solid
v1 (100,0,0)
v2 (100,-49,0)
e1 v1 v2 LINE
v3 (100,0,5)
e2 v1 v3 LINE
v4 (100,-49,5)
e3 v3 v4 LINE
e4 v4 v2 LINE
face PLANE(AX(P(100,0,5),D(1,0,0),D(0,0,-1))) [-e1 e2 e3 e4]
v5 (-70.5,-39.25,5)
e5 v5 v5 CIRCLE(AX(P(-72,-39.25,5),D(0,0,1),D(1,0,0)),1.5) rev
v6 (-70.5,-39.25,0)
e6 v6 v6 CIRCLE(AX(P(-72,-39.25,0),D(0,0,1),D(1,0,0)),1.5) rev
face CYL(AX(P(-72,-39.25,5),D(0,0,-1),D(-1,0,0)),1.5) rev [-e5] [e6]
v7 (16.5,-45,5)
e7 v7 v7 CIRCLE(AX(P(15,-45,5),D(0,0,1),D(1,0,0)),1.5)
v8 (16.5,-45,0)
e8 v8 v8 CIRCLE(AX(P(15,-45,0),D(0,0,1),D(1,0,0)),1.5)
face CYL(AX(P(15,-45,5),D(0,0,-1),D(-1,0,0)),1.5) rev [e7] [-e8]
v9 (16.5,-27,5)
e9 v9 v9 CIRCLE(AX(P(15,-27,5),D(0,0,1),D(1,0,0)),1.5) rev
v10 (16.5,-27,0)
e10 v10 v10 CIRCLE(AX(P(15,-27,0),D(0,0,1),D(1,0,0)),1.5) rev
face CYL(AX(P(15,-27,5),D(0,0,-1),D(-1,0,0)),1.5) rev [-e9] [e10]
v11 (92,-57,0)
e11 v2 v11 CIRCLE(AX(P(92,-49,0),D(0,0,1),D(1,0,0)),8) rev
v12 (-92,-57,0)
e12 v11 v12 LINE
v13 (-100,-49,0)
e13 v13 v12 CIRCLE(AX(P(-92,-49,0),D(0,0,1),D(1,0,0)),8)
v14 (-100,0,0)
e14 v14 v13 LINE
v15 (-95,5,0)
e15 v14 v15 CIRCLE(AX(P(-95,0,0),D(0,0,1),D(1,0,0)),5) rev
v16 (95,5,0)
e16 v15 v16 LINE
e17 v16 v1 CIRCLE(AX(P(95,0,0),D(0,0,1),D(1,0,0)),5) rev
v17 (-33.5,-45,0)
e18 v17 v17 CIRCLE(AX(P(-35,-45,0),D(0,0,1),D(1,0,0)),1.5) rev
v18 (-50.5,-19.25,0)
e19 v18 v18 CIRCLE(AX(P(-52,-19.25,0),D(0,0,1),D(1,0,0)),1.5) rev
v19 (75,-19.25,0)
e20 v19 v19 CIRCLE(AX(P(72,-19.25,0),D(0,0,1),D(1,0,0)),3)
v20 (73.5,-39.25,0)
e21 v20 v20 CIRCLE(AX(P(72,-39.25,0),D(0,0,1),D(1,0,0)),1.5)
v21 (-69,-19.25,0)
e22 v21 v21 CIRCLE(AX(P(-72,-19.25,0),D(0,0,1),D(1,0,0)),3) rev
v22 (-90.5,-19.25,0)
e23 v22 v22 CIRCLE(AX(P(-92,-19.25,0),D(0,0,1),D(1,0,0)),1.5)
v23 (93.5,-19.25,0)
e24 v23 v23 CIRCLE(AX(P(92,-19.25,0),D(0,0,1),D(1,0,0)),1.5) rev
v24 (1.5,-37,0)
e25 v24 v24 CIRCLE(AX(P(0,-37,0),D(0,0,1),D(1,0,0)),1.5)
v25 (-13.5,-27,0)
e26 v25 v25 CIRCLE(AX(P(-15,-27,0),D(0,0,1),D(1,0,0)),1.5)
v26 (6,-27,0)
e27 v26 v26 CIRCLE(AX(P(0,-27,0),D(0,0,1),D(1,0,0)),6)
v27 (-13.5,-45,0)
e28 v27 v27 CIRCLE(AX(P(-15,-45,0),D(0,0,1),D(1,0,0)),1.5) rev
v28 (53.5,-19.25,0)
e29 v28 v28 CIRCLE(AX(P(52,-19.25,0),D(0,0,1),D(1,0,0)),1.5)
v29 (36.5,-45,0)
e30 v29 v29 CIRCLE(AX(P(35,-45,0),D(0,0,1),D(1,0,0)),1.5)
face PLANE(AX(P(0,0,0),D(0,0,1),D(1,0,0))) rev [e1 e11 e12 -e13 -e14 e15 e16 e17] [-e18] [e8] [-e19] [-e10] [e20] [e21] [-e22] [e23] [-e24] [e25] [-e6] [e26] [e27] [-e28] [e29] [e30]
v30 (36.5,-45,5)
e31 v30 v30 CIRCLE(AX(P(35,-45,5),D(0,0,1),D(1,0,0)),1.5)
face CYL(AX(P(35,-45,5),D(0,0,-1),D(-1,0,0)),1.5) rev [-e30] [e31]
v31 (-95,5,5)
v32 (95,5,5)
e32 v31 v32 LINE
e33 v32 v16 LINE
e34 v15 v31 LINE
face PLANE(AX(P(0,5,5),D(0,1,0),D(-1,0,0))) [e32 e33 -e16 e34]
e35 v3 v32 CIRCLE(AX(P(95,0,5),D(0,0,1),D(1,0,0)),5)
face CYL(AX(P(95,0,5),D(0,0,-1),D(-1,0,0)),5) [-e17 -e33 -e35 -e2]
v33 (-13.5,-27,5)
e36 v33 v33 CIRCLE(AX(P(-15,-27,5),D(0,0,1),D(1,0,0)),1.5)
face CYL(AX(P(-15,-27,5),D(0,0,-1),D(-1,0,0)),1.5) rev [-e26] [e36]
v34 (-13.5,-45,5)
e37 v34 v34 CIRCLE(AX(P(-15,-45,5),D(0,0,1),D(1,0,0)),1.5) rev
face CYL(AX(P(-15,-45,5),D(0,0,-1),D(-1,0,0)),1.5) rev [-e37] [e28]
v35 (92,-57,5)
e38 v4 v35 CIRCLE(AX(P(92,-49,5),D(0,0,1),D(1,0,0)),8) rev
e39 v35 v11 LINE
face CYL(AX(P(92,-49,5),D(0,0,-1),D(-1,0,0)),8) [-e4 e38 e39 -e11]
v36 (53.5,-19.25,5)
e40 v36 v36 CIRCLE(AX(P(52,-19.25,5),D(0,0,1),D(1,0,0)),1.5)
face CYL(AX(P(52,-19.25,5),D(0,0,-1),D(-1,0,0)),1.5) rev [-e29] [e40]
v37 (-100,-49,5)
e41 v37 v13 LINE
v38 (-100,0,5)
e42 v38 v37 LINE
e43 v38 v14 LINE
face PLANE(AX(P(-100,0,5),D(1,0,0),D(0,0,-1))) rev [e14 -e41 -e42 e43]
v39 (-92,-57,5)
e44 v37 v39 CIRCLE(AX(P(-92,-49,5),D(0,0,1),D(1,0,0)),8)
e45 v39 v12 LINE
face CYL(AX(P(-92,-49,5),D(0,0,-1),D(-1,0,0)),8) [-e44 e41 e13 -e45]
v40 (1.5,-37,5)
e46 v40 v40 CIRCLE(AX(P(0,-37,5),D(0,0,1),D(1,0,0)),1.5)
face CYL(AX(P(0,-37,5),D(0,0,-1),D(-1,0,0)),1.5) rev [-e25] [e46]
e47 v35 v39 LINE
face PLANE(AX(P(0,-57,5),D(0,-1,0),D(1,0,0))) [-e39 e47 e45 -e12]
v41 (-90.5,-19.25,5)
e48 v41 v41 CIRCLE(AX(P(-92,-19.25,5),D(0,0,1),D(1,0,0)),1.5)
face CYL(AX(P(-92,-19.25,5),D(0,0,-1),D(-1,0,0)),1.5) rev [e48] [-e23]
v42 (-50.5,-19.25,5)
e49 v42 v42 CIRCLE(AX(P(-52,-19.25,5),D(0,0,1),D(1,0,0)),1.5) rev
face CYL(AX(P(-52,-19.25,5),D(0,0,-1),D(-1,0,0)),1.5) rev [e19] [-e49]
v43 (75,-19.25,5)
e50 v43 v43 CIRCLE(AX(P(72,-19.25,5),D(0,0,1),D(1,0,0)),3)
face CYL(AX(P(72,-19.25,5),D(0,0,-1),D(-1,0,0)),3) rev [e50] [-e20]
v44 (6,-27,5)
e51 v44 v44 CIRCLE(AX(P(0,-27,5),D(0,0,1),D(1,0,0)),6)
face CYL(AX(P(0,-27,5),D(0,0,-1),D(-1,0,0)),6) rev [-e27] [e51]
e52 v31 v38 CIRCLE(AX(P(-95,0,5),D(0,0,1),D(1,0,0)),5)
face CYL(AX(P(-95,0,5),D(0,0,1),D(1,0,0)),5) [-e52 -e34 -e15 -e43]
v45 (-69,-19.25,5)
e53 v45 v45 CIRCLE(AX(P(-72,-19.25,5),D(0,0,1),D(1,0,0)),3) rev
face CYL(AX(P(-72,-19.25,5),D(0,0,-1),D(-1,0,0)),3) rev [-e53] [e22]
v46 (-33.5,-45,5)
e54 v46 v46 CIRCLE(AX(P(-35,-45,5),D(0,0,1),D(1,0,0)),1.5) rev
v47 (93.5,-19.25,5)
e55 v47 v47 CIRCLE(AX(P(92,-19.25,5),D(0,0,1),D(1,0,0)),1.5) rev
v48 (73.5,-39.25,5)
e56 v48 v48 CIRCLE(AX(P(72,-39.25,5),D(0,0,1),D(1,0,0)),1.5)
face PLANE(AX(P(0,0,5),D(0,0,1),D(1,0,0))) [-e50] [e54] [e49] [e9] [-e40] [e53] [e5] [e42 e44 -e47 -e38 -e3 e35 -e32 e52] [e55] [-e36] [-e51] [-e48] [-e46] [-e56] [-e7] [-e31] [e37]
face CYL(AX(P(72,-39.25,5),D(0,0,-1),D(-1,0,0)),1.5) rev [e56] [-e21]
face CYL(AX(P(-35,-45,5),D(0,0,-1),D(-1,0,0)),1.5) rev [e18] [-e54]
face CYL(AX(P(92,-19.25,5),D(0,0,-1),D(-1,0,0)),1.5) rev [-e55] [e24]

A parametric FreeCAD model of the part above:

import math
import FreeCAD as App
import Part
import Sketcher
from FreeCAD import Vector


def edges_at(feature, points):
    """Names of the edges that pass closest to the given points."""
    edges = feature.Shape.Edges
    near = lambda p: min(range(len(edges)), key=lambda i: edges[i].distToShape(Part.Vertex(*p))[0])
    return sorted({f"Edge{near(p) + 1}" for p in points})

doc = App.newDocument("Part")
body = doc.addObject("PartDesign::Body", "Body")

sketch1 = body.newObject("Sketcher::SketchObject", "Sketch")
sketch1.AttachmentSupport = (doc.getObject("XY_Plane"), [""])
sketch1.MapMode = "FlatFace"
sketch1.addGeometry([
    Part.ArcOfCircle(Part.Circle(Vector(92, -49, 0), Vector(0, 0, 1), 8), math.radians(-90), math.radians(0)),
    Part.LineSegment(Vector(100, -49, 0), Vector(100, 5, 0)),
    Part.LineSegment(Vector(100, 5, 0), Vector(-100, 5, 0)),
    Part.LineSegment(Vector(-100, 5, 0), Vector(-100, -49, 0)),
    Part.ArcOfCircle(Part.Circle(Vector(-92, -49, 0), Vector(0, 0, 1), 8), math.radians(-180), math.radians(-90)),
    Part.LineSegment(Vector(-92, -57, 0), Vector(92, -57, 0)),
    Part.Circle(Vector(72, -39.2, 0), Vector(0, 0, 1), 1.5),
    Part.Circle(Vector(35, -45, 0), Vector(0, 0, 1), 1.5),
    Part.Circle(Vector(15, -45, 0), Vector(0, 0, 1), 1.5),
    Part.Circle(Vector(0, -37, 0), Vector(0, 0, 1), 1.5),
    Part.Circle(Vector(-15, -45, 0), Vector(0, 0, 1), 1.5),
    Part.Circle(Vector(-35, -45, 0), Vector(0, 0, 1), 1.5),
    Part.Circle(Vector(-72, -39.2, 0), Vector(0, 0, 1), 1.5),
    Part.Circle(Vector(15, -27, 0), Vector(0, 0, 1), 1.5),
    Part.Circle(Vector(0, -27, 0), Vector(0, 0, 1), 6),
    Part.Circle(Vector(92, -19.2, 0), Vector(0, 0, 1), 1.5),
    Part.Circle(Vector(72, -19.2, 0), Vector(0, 0, 1), 3),
    Part.Circle(Vector(52, -19.2, 0), Vector(0, 0, 1), 1.5),
    Part.Circle(Vector(-15, -27, 0), Vector(0, 0, 1), 1.5),
    Part.Circle(Vector(-52, -19.2, 0), Vector(0, 0, 1), 1.5),
    Part.Circle(Vector(-72, -19.2, 0), Vector(0, 0, 1), 3),
    Part.Circle(Vector(-92, -19.2, 0), Vector(0, 0, 1), 1.5),
], False)
sketch1.addConstraint([
    Sketcher.Constraint("Tangent", 0, 2, 1, 1),
    Sketcher.Constraint("Coincident", 1, 2, 2, 1),
    Sketcher.Constraint("Coincident", 2, 2, 3, 1),
    Sketcher.Constraint("Tangent", 3, 2, 4, 1),
    Sketcher.Constraint("Tangent", 4, 2, 5, 1),
    Sketcher.Constraint("Tangent", 5, 2, 0, 1),
    Sketcher.Constraint("Vertical", 1),
    Sketcher.Constraint("Horizontal", 2),
    Sketcher.Constraint("Vertical", 3),
    Sketcher.Constraint("Horizontal", 5),
    Sketcher.Constraint("Equal", 0, 4),
    Sketcher.Constraint("Equal", 6, 7),
    Sketcher.Constraint("Equal", 7, 8),
    Sketcher.Constraint("Equal", 8, 9),
    Sketcher.Constraint("Equal", 9, 10),
    Sketcher.Constraint("Equal", 10, 11),
    Sketcher.Constraint("Equal", 11, 12),
    Sketcher.Constraint("Equal", 12, 13),
    Sketcher.Constraint("Equal", 13, 15),
    Sketcher.Constraint("Equal", 15, 17),
    Sketcher.Constraint("Equal", 17, 18),
    Sketcher.Constraint("Equal", 18, 19),
    Sketcher.Constraint("Equal", 16, 20),
    Sketcher.Constraint("Equal", 19, 21),
    Sketcher.Constraint("Symmetric", 8, 3, 10, 3, -2),
    Sketcher.Constraint("Symmetric", 7, 3, 11, 3, -2),
    Sketcher.Constraint("Symmetric", 6, 3, 12, 3, -2),
    Sketcher.Constraint("Symmetric", 13, 3, 18, 3, -2),
    Sketcher.Constraint("Symmetric", 17, 3, 19, 3, -2),
    Sketcher.Constraint("Symmetric", 16, 3, 20, 3, -2),
    Sketcher.Constraint("Symmetric", 15, 3, 21, 3, -2),
    Sketcher.Constraint("PointOnObject", 9, 3, -2),
    Sketcher.Constraint("PointOnObject", 14, 3, -2),
    Sketcher.Constraint("Horizontal", 7, 3, 8, 3),
    Sketcher.Constraint("Horizontal", 13, 3, 14, 3),
    Sketcher.Constraint("Horizontal", 15, 3, 16, 3),
    Sketcher.Constraint("Horizontal", 16, 3, 17, 3),
    Sketcher.Constraint("Vertical", 8, 3, 13, 3),
    Sketcher.Constraint("Vertical", 0, 3, 15, 3),
    Sketcher.Constraint("Vertical", 6, 3, 16, 3),
    Sketcher.Constraint("Vertical", 4, 3, 21, 3),
    Sketcher.Constraint("Diameter", 6, 3.0),
    Sketcher.Constraint("Diameter", 14, 12.0),
    Sketcher.Constraint("Diameter", 16, 6.0),
    Sketcher.Constraint("Radius", 0, 8.0),
    Sketcher.Constraint("DistanceX", 2, 2, 2, 1, 200.0),
    Sketcher.Constraint("DistanceY", 1, 1, 1, 2, 54.0),
    Sketcher.Constraint("DistanceY", 0, 3, -1, 1, 49.0),
    Sketcher.Constraint("DistanceX", -1, 1, 6, 3, 72.0),
    Sketcher.Constraint("DistanceX", -1, 1, 7, 3, 35.0),
    Sketcher.Constraint("DistanceY", 7, 3, -1, 1, 45.0),
    Sketcher.Constraint("DistanceX", -1, 1, 8, 3, 15.0),
    Sketcher.Constraint("DistanceY", 9, 3, -1, 1, 37.0),
    Sketcher.Constraint("DistanceY", 13, 3, -1, 1, 27.0),
    Sketcher.Constraint("DistanceX", -1, 1, 17, 3, 52.0),
    Sketcher.Constraint("DistanceY", 6, 3, 15, 3, 20.0),
    Sketcher.Constraint("DistanceY", 6, 3, -1, 1, 39.25),
])
pad1 = body.newObject("PartDesign::Pad", "Pad")
pad1.Profile = sketch1
pad1.Length = 5
doc.recompute()

fillet = body.newObject("PartDesign::Fillet", "Fillet")
fillet.Base = (pad1, edges_at(pad1, [(-100, 5, 2.5), (100, 5, 2.5)]))
fillet.Radius = 5

doc.recompute()
